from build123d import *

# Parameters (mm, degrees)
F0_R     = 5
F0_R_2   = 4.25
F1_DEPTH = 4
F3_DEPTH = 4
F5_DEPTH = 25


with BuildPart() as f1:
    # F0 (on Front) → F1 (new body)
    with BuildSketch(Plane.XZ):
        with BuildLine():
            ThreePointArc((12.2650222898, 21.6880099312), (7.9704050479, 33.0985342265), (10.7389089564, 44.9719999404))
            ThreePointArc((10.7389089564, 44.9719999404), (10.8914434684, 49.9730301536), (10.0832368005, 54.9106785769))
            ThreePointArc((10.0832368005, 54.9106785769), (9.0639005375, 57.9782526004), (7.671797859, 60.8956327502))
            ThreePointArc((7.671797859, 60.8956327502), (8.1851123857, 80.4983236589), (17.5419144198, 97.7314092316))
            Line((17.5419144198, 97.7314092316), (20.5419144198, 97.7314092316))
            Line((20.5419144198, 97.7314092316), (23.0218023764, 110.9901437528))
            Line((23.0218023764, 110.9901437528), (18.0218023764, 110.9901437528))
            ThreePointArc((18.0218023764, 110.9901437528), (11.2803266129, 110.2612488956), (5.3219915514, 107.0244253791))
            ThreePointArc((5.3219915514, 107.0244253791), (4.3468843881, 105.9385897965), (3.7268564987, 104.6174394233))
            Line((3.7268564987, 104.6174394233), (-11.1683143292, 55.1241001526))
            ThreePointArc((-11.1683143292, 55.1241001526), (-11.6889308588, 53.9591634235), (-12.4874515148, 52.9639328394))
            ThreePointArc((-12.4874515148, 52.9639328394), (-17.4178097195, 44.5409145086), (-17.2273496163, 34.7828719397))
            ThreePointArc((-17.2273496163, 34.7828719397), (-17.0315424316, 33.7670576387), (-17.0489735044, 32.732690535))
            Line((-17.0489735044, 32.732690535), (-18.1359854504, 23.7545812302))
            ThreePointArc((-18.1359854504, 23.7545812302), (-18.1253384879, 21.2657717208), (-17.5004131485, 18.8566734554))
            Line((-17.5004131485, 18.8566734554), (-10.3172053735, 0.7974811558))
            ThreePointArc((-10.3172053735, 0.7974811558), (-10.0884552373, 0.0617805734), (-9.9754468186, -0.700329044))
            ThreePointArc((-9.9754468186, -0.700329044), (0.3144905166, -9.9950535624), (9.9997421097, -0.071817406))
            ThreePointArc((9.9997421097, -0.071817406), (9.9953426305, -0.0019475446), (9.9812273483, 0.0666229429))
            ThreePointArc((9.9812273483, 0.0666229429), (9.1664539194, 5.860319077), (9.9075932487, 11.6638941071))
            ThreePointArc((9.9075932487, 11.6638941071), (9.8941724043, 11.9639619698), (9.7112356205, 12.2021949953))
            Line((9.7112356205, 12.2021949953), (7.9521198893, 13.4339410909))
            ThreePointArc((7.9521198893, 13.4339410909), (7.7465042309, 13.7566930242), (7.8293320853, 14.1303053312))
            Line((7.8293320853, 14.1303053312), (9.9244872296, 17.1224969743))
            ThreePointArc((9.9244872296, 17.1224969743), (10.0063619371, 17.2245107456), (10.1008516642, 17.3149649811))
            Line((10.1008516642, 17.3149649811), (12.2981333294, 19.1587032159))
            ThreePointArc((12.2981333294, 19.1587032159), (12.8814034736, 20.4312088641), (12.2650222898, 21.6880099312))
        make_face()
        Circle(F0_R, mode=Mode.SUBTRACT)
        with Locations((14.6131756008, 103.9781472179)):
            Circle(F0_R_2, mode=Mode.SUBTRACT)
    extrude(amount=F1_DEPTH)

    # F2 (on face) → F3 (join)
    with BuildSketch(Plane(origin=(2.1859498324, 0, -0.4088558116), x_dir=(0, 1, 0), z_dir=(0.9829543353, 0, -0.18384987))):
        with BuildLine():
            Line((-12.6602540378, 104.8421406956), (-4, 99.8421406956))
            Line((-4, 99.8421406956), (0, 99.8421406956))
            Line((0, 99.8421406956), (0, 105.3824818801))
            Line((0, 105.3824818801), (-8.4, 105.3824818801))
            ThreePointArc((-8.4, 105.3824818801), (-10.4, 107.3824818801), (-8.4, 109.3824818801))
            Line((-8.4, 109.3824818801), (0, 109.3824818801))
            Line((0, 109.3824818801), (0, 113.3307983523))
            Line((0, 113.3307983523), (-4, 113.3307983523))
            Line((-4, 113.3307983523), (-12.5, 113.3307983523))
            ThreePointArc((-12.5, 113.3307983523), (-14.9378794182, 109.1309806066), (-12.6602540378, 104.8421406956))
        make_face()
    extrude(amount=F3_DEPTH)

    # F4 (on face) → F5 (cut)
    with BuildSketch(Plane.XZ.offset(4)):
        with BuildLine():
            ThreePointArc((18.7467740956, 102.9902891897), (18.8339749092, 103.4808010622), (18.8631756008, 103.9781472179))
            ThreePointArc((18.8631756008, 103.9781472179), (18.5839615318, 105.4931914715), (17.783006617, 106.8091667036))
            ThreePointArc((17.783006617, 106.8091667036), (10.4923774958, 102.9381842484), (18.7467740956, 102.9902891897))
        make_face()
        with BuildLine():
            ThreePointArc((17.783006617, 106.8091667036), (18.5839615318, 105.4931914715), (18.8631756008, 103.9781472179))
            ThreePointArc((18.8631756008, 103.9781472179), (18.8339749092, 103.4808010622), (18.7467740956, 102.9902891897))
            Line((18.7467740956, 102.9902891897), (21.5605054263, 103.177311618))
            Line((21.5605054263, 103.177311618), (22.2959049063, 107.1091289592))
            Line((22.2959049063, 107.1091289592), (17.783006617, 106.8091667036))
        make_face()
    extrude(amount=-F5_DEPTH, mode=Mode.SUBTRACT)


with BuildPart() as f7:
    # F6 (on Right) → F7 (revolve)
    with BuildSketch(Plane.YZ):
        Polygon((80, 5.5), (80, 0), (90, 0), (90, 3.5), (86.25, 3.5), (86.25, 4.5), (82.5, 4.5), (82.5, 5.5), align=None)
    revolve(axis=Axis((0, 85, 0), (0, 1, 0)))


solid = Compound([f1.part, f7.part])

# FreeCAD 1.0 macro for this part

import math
import FreeCAD as App
import Part
import Sketcher
Q = App.Units.Quantity

doc = App.newDocument("Part")
params = doc.addObject("Spreadsheet::Sheet", "Params")
for row, (alias, value) in enumerate([
    ("sketch1_diameter", "10 mm"),
    ("sketch1_radius", "21 mm"),
    ("sketch1_radius2", "26 mm"),
    ("sketch1_radius3", "42 mm"),
    ("sketch1_radius4", "5 mm"),
    ("pad1_length", "4 mm"),
    ("sketch2_radius", "2 mm"),
    ("sketch2_radius2", "5 mm"),
    ("sketch2_width", "4 mm"),
    ("sketch2_length", "10 mm"),
    ("sketch2_width2", "8.4 mm"),
    ("pad2_length", "4 mm"),
    ("sketch3_radius", "4.25 mm"),
    ("sketch3_length", "4 mm"),
    ("pocket1_length", "25 mm"),
    ("sketch4_width", "10 mm"),
    ("sketch4_height", "1 mm"),
    ("sketch4_width2", "2.5 mm"),
    ("sketch4_height2", "5.5 mm"),
    ("revolution_angle", "360 deg"),
], start=1):
    params.set(f"A{row}", alias)
    params.set(f"B{row}", "=" + value)
    params.setAlias(f"B{row}", alias)

body = doc.addObject("PartDesign::Body", "Body")

# Sketch on XZ plane
sketch1 = body.newObject("Sketcher::SketchObject", "Sketch")
sketch1.AttachmentSupport = (doc.getObject("XZ_Plane"), [""])
sketch1.MapMode = "FlatFace"
sketch1.addGeometry([
    Part.ArcOfCircle(Part.Circle(App.Vector(28.925442, 34.472, 0), App.Vector(0, 0, 1), 21), math.radians(150), math.radians(217.5)),  # 0
    Part.ArcOfCircle(Part.Circle(App.Vector(-15.052161, 48.261485, 0), App.Vector(0, 0, 1), 26), math.radians(-7.268464), math.radians(14.817333)),  # 1
    Part.ArcOfCircle(Part.Circle(App.Vector(-15.052161, 48.261485, 0), App.Vector(0, 0, 1), 26), math.radians(14.817333), math.radians(29.073341)),  # 2
    Part.ArcOfCircle(Part.Circle(App.Vector(48.753997, 69.627924, 0), App.Vector(0, 0, 1), 42), math.radians(138), math.radians(192)),  # 3
    Part.LineSegment(App.Vector(17.541914, 97.731409, 0), App.Vector(20.541914, 97.731409, 0)),  # 4
    Part.LineSegment(App.Vector(20.541914, 97.731409, 0), App.Vector(23.021802, 110.990144, 0)),  # 5
    Part.LineSegment(App.Vector(23.021802, 110.990144, 0), App.Vector(18.021802, 110.990144, 0)),  # 6
    Part.ArcOfCircle(Part.Circle(App.Vector(16.496577, 93.556737, 0), App.Vector(0, 0, 1), 17.5), math.radians(85), math.radians(129.683613)),  # 7
    Part.ArcOfCircle(Part.Circle(App.Vector(8.51473, 103.176514, 0), App.Vector(0, 0, 1), 5), math.radians(129.683613), math.radians(163.250673)),  # 8
    Part.LineSegment(App.Vector(3.726856, 104.617439, 0), App.Vector(-11.168314, 55.1241, 0)),  # 9
    Part.ArcOfCircle(Part.Circle(App.Vector(-15.956188, 56.565025, 0), App.Vector(0, 0, 1), 5), math.radians(-46.072522), math.radians(-16.749327)),  # 10
    Part.ArcOfCircle(Part.Circle(App.Vector(0, 40, 0), App.Vector(0, 0, 1), 18), math.radians(133.927478), math.radians(196.848404)),  # 11
    Part.ArcOfCircle(Part.Circle(App.Vector(-22.012725, 33.33367, 0), App.Vector(0, 0, 1), 5), math.radians(-6.903405), math.radians(16.848404)),  # 12
    Part.LineSegment(App.Vector(-17.048974, 32.732691, 0), App.Vector(-18.135985, 23.754581, 0)),  # 13
    Part.ArcOfCircle(Part.Circle(App.Vector(-8.208483, 22.552623, 0), App.Vector(0, 0, 1), 10), math.radians(173.096595), math.radians(201.690639)),  # 14
    Part.LineSegment(App.Vector(-17.500413, 18.856673, 0), App.Vector(-10.317205, 0.797481, 0)),  # 15
    Part.ArcOfCircle(Part.Circle(App.Vector(-14.96317, -1.050494, 0), App.Vector(0, 0, 1), 5), math.radians(4.015877), math.radians(21.690639)),  # 16
    Part.ArcOfCircle(Part.Circle(App.Vector(0, 0, 0), App.Vector(0, 0, 1), 10), math.radians(-175.984123), math.radians(-0.411487)),  # 17
    Part.ArcOfCircle(Part.Circle(App.Vector(9.499755, -0.068227, 0), App.Vector(0, 0, 1), 0.5), math.radians(-0.411487), math.radians(15.646354)),  # 18
    Part.ArcOfCircle(Part.Circle(App.Vector(31.16601, 6, 0), App.Vector(0, 0, 1), 22), math.radians(165.081208), math.radians(195.646354)),  # 19
    Part.ArcOfCircle(Part.Circle(App.Vector(9.424447, 11.792619, 0), App.Vector(0, 0, 1), 0.5), math.radians(-14.918792), math.radians(55)),  # 20
    Part.LineSegment(App.Vector(9.711236, 12.202195, 0), App.Vector(7.95212, 13.433941, 0)),  # 21
    Part.ArcOfCircle(Part.Circle(App.Vector(8.238908, 13.843517, 0), App.Vector(0, 0, 1), 0.5), math.radians(145), math.radians(235)),  # 22
    Part.LineSegment(App.Vector(7.829332, 14.130305, 0), App.Vector(9.924487, 17.122497, 0)),  # 23
    Part.ArcOfCircle(Part.Circle(App.Vector(10.743639, 16.548921, 0), App.Vector(0, 0, 1), 1), math.radians(130), math.radians(145)),  # 24
    Part.LineSegment(App.Vector(10.100852, 17.314965, 0), App.Vector(12.298133, 19.158703, 0)),  # 25
    Part.ArcOfCircle(Part.Circle(App.Vector(11.248313, 20.40983, 0), App.Vector(0, 0, 1), 1.63323), math.radians(-50), math.radians(51.500027)),  # 26
    Part.Circle(App.Vector(0, 0, 0), App.Vector(0, 0, 1), 5),  # 27
    Part.Circle(App.Vector(14.613176, 103.978147, 0), App.Vector(0, 0, 1), 4.25),  # 28
], False)
sketch1.addConstraint([
    Sketcher.Constraint("Coincident", 0, 1, 1, 1),
    Sketcher.Constraint("Coincident", 1, 2, 2, 1),
    Sketcher.Constraint("Coincident", 2, 2, 3, 2),
    Sketcher.Constraint("Coincident", 3, 1, 4, 1),
    Sketcher.Constraint("Coincident", 4, 2, 5, 1),
    Sketcher.Constraint("Coincident", 5, 2, 6, 1),
    Sketcher.Constraint("Coincident", 6, 2, 7, 1),
    Sketcher.Constraint("Coincident", 7, 2, 8, 1),
    Sketcher.Constraint("Coincident", 8, 2, 9, 1),
    Sketcher.Constraint("Coincident", 9, 2, 10, 2),
    Sketcher.Constraint("Coincident", 10, 1, 11, 1),
    Sketcher.Constraint("Coincident", 11, 2, 12, 2),
    Sketcher.Constraint("Coincident", 12, 1, 13, 1),
    Sketcher.Constraint("Coincident", 13, 2, 14, 1),
    Sketcher.Constraint("Coincident", 14, 2, 15, 1),
    Sketcher.Constraint("Coincident", 15, 2, 16, 2),
    Sketcher.Constraint("Coincident", 16, 1, 17, 1),
    Sketcher.Constraint("Coincident", 17, 2, 18, 1),
    Sketcher.Constraint("Coincident", 18, 2, 19, 2),
    Sketcher.Constraint("Coincident", 19, 1, 20, 1),
    Sketcher.Constraint("Coincident", 20, 2, 21, 1),
    Sketcher.Constraint("Coincident", 21, 2, 22, 2),
    Sketcher.Constraint("Coincident", 22, 1, 23, 1),
    Sketcher.Constraint("Coincident", 23, 2, 24, 2),
    Sketcher.Constraint("Coincident", 24, 1, 25, 1),
    Sketcher.Constraint("Coincident", 25, 2, 26, 1),
    Sketcher.Constraint("Coincident", 26, 2, 0, 2),
    Sketcher.Constraint("Horizontal", 4),
    Sketcher.Constraint("Horizontal", 6),
    Sketcher.Constraint("Coincident", 17, 3, -1, 1),
    Sketcher.Constraint("Coincident", 27, 3, -1, 1),
    Sketcher.Constraint("Coincident", 2, 3, 1, 3),
    Sketcher.Constraint("PointOnObject", 11, 3, -2),
    Sketcher.Constraint("Diameter", 27, 10.0),
    Sketcher.Constraint("Radius", 0, 21.0),
    Sketcher.Constraint("Radius", 1, 26.0),
    Sketcher.Constraint("Radius", 3, 42.0),
    Sketcher.Constraint("Radius", 8, 5.0),
    Sketcher.Constraint("Radius", 10, 5.0),
    Sketcher.Constraint("Radius", 11, 18.0),
    Sketcher.Constraint("Radius", 12, 5.0),
    Sketcher.Constraint("Radius", 14, 10.0),
    Sketcher.Constraint("Radius", 16, 5.0),
    Sketcher.Constraint("Radius", 17, 10.0),
    Sketcher.Constraint("Radius", 19, 22.0),
    Sketcher.Constraint("Radius", 24, 1.0),
    Sketcher.Constraint("Diameter", 28, 8.5),
    Sketcher.Constraint("Radius", 7, 17.5),
    Sketcher.Constraint("Radius", 18, 0.5),
    Sketcher.Constraint("Radius", 20, 0.5),
    Sketcher.Constraint("Radius", 22, 0.5),
    Sketcher.Constraint("DistanceX", 4, 1, 4, 2, 3.0),
    Sketcher.Constraint("DistanceX", 6, 2, 6, 1, 5.0),
    Sketcher.Constraint("DistanceY", -1, 1, 11, 3, 40.0),
    Sketcher.Constraint("DistanceY", -1, 1, 19, 3, 6.0),
    Sketcher.Constraint("DistanceY", 0, 3, 0, 1, 10.5),
    Sketcher.Constraint("Radius", 26, 1.63323),
    Sketcher.Constraint("DistanceY", -1, 1, 0, 3, 34.472),
    Sketcher.Constraint("DistanceY", -1, 1, 9, 2, 55.1241),
    Sketcher.Constraint("DistanceY", 20, 3, 22, 3, 2.050898),
    Sketcher.Constraint("DistanceY", 20, 3, 24, 3, 4.756302),
    Sketcher.Constraint("DistanceX", 28, 3, 7, 3, 1.883401),
    Sketcher.Constraint("DistanceY", 14, 2, 11, 2, 15.926198),
    Sketcher.Constraint("DistanceX", 16, 1, 18, 3, 19.475202),
    Sketcher.Constraint("DistanceY", 19, 1, 20, 2, 0.538301),
    Sketcher.Constraint("Distance", 15, 19.435352),
    Sketcher.Constraint("Distance", 23, 3.652792),
    Sketcher.Constraint("DistanceX", 1, 3, -1, 1, 15.052161),
    Sketcher.Constraint("DistanceX", -1, 1, 8, 3, 8.51473),
    Sketcher.Constraint("DistanceX", 10, 3, -1, 1, 15.956188),
    Sketcher.Constraint("DistanceY", -1, 1, 12, 3, 33.33367),
    Sketcher.Constraint("DistanceX", 16, 3, -1, 1, 14.96317),
    Sketcher.Constraint("DistanceX", -1, 1, 19, 3, 31.16601),
    Sketcher.Constraint("DistanceY", -1, 1, 20, 3, 11.792619),
    Sketcher.Constraint("DistanceX", -1, 1, 22, 3, 8.238908),
    Sketcher.Constraint("DistanceX", -1, 1, 24, 3, 10.743639),
    Sketcher.Constraint("DistanceY", -1, 1, 26, 3, 20.40983),
    Sketcher.Constraint("DistanceX", -1, 1, 0, 1, 10.738909),
    Sketcher.Constraint("DistanceY", -1, 1, 1, 2, 54.910679),
    Sketcher.Constraint("DistanceY", -1, 1, 3, 1, 97.731409),
    Sketcher.Constraint("DistanceX", -1, 1, 7, 2, 5.321992),
    Sketcher.Constraint("DistanceY", -1, 1, 8, 2, 104.617439),
    Sketcher.Constraint("DistanceX", 10, 1, -1, 1, 12.487452),
    Sketcher.Constraint("DistanceX", 11, 2, -1, 1, 17.22735),
    Sketcher.Constraint("DistanceY", -1, 1, 12, 1, 32.732691),
    Sketcher.Constraint("DistanceY", -1, 1, 13, 2, 23.754581),
    Sketcher.Constraint("DistanceY", -1, 1, 15, 2, 0.797481),
    Sketcher.Constraint("DistanceX", -1, 1, 21, 2, 7.95212),
    Sketcher.Constraint("DistanceX", -1, 1, 24, 1, 10.100852),
    Sketcher.Constraint("DistanceY", -1, 1, 26, 2, 21.68801),
    Sketcher.Constraint("DistanceX", 2, 3, 3, 3, 63.806158),
    Sketcher.Constraint("DistanceY", 2, 3, 3, 3, 21.366439),
    Sketcher.Constraint("DistanceX", 7, 3, 3, 3, 32.25742),
    Sketcher.Constraint("DistanceY", 2, 3, 7, 3, 45.295252),
    Sketcher.Constraint("DistanceX", 12, 3, 14, 3, 13.804241),
    Sketcher.Constraint("DistanceY", 7, 3, 28, 3, 10.421411),
    Sketcher.Constraint("DistanceY", 8, 3, 5, 2, 7.813629),
    Sketcher.Constraint("DistanceY", 17, 2, 18, 3, 0.003591),
    Sketcher.Constraint("DistanceY", 17, 2, 18, 2, 0.13844),
    Sketcher.Constraint("DistanceX", 19, 1, 26, 3, 1.34072),
    Sketcher.Constraint("DistanceY", 22, 3, 22, 1, 0.286788),
    Sketcher.Constraint("DistanceX", 26, 3, 25, 2, 1.04982),
])
sketch1.setExpression("Constraints[33]", "Params.sketch1_diameter")
sketch1.setExpression("Constraints[34]", "Params.sketch1_radius")
sketch1.setExpression("Constraints[35]", "Params.sketch1_radius2")
sketch1.setExpression("Constraints[36]", "Params.sketch1_radius3")
sketch1.setExpression("Constraints[37]", "Params.sketch1_radius4")
pad1 = body.newObject("PartDesign::Pad", "Pad")
pad1.Profile = sketch1
pad1.setExpression("Length", "Params.pad1_length")

# Sketch on an angled plane
sketch2 = body.newObject("Sketcher::SketchObject", "Sketch001")
sketch2.Placement = App.Placement(App.Vector(2.18595, 0, -0.408856), App.Rotation(App.Vector(0, 1, 0), App.Vector(0.18384987, 0, 0.982954335), App.Vector(0.982954335, 0, -0.18384987), "ZXY"))
sketch2.addGeometry([
    Part.LineSegment(App.Vector(-12.660254, 104.842141, 0), App.Vector(-4, 99.842141, 0)),  # 0
    Part.LineSegment(App.Vector(-4, 99.842141, 0), App.Vector(0, 99.842141, 0)),  # 1
    Part.LineSegment(App.Vector(0, 99.842141, 0), App.Vector(0, 105.382482, 0)),  # 2
    Part.LineSegment(App.Vector(0, 105.382482, 0), App.Vector(-8.4, 105.382482, 0)),  # 3
    Part.ArcOfCircle(Part.Circle(App.Vector(-8.4, 107.382482, 0), App.Vector(0, 0, 1), 2), math.radians(90), math.radians(270)),  # 4
    Part.LineSegment(App.Vector(-8.4, 109.382482, 0), App.Vector(0, 109.382482, 0)),  # 5
    Part.LineSegment(App.Vector(0, 109.382482, 0), App.Vector(0, 113.330798, 0)),  # 6
    Part.LineSegment(App.Vector(0, 113.330798, 0), App.Vector(-12.5, 113.330798, 0)),  # 7
    Part.ArcOfCircle(Part.Circle(App.Vector(-9.93877, 109.036604, 0), App.Vector(0, 0, 1), 5), math.radians(120.813548), math.radians(237.023379)),  # 8
], False)
sketch2.addConstraint([
    Sketcher.Constraint("Coincident", 0, 2, 1, 1),
    Sketcher.Constraint("Coincident", 1, 2, 2, 1),
    Sketcher.Constraint("Coincident", 2, 2, 3, 1),
    Sketcher.Constraint("Tangent", 3, 2, 4, 2),
    Sketcher.Constraint("Tangent", 4, 1, 5, 1),
    Sketcher.Constraint("Coincident", 5, 2, 6, 1),
    Sketcher.Constraint("Coincident", 6, 2, 7, 1),
    Sketcher.Constraint("Coincident", 7, 2, 8, 1),
    Sketcher.Constraint("Coincident", 8, 2, 0, 1),
    Sketcher.Constraint("Horizontal", 1),
    Sketcher.Constraint("Vertical", 2),
    Sketcher.Constraint("Horizontal", 3),
    Sketcher.Constraint("Horizontal", 5),
    Sketcher.Constraint("Vertical", 6),
    Sketcher.Constraint("Horizontal", 7),
    Sketcher.Constraint("PointOnObject", 1, 2, -2),
    Sketcher.Constraint("PointOnObject", 5, 2, -2),
    Sketcher.Constraint("Radius", 4, 2.0),
    Sketcher.Constraint("Radius", 8, 5.0),
    Sketcher.Constraint("DistanceX", 1, 1, 1, 2, 4.0),
    Sketcher.Constraint("Angle", 0, Q("-30 deg")),
    Sketcher.Constraint("Distance", 0, 10.0),
    Sketcher.Constraint("DistanceX", 3, 2, 3, 1, 8.4),
    Sketcher.Constraint("DistanceX", 7, 2, 7, 1, 12.5),
    Sketcher.Constraint("DistanceY", 2, 1, 2, 2, 5.540341),
    Sketcher.Constraint("DistanceY", -1, 1, 6, 2, 113.330798),
    Sketcher.Constraint("DistanceY", 6, 1, 6, 2, 3.948316),
])
sketch2.setExpression("Constraints[17]", "Params.sketch2_radius")
sketch2.setExpression("Constraints[18]", "Params.sketch2_radius2")
sketch2.setExpression("Constraints[19]", "Params.sketch2_width")
sketch2.setExpression("Constraints[21]", "Params.sketch2_length")
sketch2.setExpression("Constraints[22]", "Params.sketch2_width2")
pad2 = body.newObject("PartDesign::Pad", "Pad001")
pad2.Profile = sketch2
pad2.setExpression("Length", "Params.pad2_length")

# Sketch on XZ plane
sketch3 = body.newObject("Sketcher::SketchObject", "Sketch002")
sketch3.AttachmentSupport = (doc.getObject("XZ_Plane"), [""])
sketch3.MapMode = "FlatFace"
sketch3.AttachmentOffset = App.Placement(App.Vector(0, 0, 4), App.Rotation())
sketch3.addGeometry([
    Part.ArcOfCircle(Part.Circle(App.Vector(14.613176, 103.978147, 0), App.Vector(0, 0, 1), 4.25), math.radians(41.768478), math.radians(346.559399)),
    Part.LineSegment(App.Vector(18.746774, 102.990289, 0), App.Vector(21.560505, 103.177312, 0)),
    Part.LineSegment(App.Vector(21.560505, 103.177312, 0), App.Vector(22.295905, 107.109129, 0)),
    Part.LineSegment(App.Vector(22.295905, 107.109129, 0), App.Vector(17.783007, 106.809167, 0)),
], False)
sketch3.addConstraint([
    Sketcher.Constraint("Coincident", 0, 2, 1, 1),
    Sketcher.Constraint("Coincident", 1, 2, 2, 1),
    Sketcher.Constraint("Coincident", 2, 2, 3, 1),
    Sketcher.Constraint("Coincident", 3, 2, 0, 1),
    Sketcher.Constraint("Parallel", 1, 3),
    Sketcher.Constraint("Radius", 0, 4.25),
    Sketcher.Constraint("Distance", 2, 4.0),
    Sketcher.Constraint("DistanceX", 0, 3, 0, 2, 4.133598),
    Sketcher.Constraint("DistanceX", 1, 2, 2, 2, 0.735399),
    Sketcher.Constraint("DistanceX", 3, 2, 2, 2, 4.512898),
    Sketcher.Constraint("Distance", 1, 2.81994),
    Sketcher.Constraint("DistanceY", -1, 1, 0, 2, 102.990289),
    Sketcher.Constraint("DistanceX", -1, 1, 0, 3, 14.613176),
])
sketch3.setExpression("Constraints[5]", "Params.sketch3_radius")
sketch3.setExpression("Constraints[6]", "Params.sketch3_length")
pocket1 = body.newObject("PartDesign::Pocket", "Pocket")
pocket1.Profile = sketch3
pocket1.setExpression("Length", "Params.pocket1_length")
body2 = doc.addObject("PartDesign::Body", "Body001")

# Sketch on YZ plane
sketch4 = body2.newObject("Sketcher::SketchObject", "Sketch003")
sketch4.AttachmentSupport = (doc.getObject("YZ_Plane001"), [""])
sketch4.MapMode = "FlatFace"
sketch4.addGeometry([
    Part.LineSegment(App.Vector(80, 5.5, 0), App.Vector(80, 0, 0)),  # 0
    Part.LineSegment(App.Vector(80, 0, 0), App.Vector(90, 0, 0)),  # 1
    Part.LineSegment(App.Vector(90, 0, 0), App.Vector(90, 3.5, 0)),  # 2
    Part.LineSegment(App.Vector(90, 3.5, 0), App.Vector(86.25, 3.5, 0)),  # 3
    Part.LineSegment(App.Vector(86.25, 3.5, 0), App.Vector(86.25, 4.5, 0)),  # 4
    Part.LineSegment(App.Vector(86.25, 4.5, 0), App.Vector(82.5, 4.5, 0)),  # 5
    Part.LineSegment(App.Vector(82.5, 4.5, 0), App.Vector(82.5, 5.5, 0)),  # 6
    Part.LineSegment(App.Vector(82.5, 5.5, 0), App.Vector(80, 5.5, 0)),  # 7
], False)
sketch4.addConstraint([
    Sketcher.Constraint("Coincident", 0, 2, 1, 1),
    Sketcher.Constraint("Coincident", 1, 2, 2, 1),
    Sketcher.Constraint("Coincident", 2, 2, 3, 1),
    Sketcher.Constraint("Coincident", 3, 2, 4, 1),
    Sketcher.Constraint("Coincident", 4, 2, 5, 1),
    Sketcher.Constraint("Coincident", 5, 2, 6, 1),
    Sketcher.Constraint("Coincident", 6, 2, 7, 1),
    Sketcher.Constraint("Coincident", 7, 2, 0, 1),
    Sketcher.Constraint("Vertical", 0),
    Sketcher.Constraint("Horizontal", 1),
    Sketcher.Constraint("Vertical", 2),
    Sketcher.Constraint("Horizontal", 3),
    Sketcher.Constraint("Vertical", 4),
    Sketcher.Constraint("Horizontal", 5),
    Sketcher.Constraint("Vertical", 6),
    Sketcher.Constraint("Horizontal", 7),
    Sketcher.Constraint("PointOnObject", 0, 2, -1),
    Sketcher.Constraint("Equal", 3, 5),
    Sketcher.Constraint("Equal", 4, 6),
    Sketcher.Constraint("DistanceX", 1, 1, 1, 2, 10.0),
    Sketcher.Constraint("DistanceY", 4, 1, 4, 2, 1.0),
    Sketcher.Constraint("DistanceX", 7, 2, 7, 1, 2.5),
    Sketcher.Constraint("DistanceY", 0, 2, 0, 1, 5.5),
    Sketcher.Constraint("DistanceX", -1, 1, 0, 2, 80.0),
])
sketch4.setExpression("Constraints[19]", "Params.sketch4_width")
sketch4.setExpression("Constraints[20]", "Params.sketch4_height")
sketch4.setExpression("Constraints[21]", "Params.sketch4_width2")
sketch4.setExpression("Constraints[22]", "Params.sketch4_height2")
revolution = body2.newObject("PartDesign::Revolution", "Revolution")
revolution.Profile = sketch4
revolution.ReferenceAxis = (sketch4, ["H_Axis"])
revolution.setExpression("Angle", "Params.revolution_angle")

doc.recompute()
